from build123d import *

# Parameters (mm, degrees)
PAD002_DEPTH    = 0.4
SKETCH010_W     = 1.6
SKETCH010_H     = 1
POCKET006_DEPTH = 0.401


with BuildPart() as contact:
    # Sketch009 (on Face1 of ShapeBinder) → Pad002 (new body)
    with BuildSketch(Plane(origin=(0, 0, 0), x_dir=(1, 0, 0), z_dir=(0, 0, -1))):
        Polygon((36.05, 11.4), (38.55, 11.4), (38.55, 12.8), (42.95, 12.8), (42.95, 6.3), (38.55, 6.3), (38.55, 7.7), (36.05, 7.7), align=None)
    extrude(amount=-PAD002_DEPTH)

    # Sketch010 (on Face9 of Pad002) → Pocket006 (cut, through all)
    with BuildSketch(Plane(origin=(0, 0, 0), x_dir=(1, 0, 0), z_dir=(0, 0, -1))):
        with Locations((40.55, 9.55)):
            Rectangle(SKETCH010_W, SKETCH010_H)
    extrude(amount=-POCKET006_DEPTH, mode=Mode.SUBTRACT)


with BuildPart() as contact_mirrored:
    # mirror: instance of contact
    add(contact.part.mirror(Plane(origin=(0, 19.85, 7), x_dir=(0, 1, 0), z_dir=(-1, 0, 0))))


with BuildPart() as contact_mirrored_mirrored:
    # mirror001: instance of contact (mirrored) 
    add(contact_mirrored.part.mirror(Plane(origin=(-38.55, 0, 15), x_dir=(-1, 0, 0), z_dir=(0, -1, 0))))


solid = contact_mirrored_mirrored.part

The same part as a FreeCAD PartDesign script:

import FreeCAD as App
import Part
import Sketcher
from FreeCAD import Vector
Q = App.Units.Quantity


def add_polygon(sketch, points):
    """Adds a closed chain of lines whose ends are joined by coincident constraints."""
    first, n = sketch.GeometryCount, len(points)
    for a, b in zip(points, points[1:] + points[:1]):
        sketch.addGeometry(Part.LineSegment(App.Vector(*a, 0), App.Vector(*b, 0)), False)
    for i in range(n):
        sketch.addConstraint(Sketcher.Constraint("Coincident", first + i, 2, first + (i + 1) % n, 1))

doc = App.newDocument("Part")
body = doc.addObject("PartDesign::Body", "Body")

# Sketch on XY plane
sketch1 = body.newObject("Sketcher::SketchObject", "Sketch")
sketch1.AttachmentSupport = (doc.getObject("XY_Plane"), [""])
sketch1.MapMode = "FlatFace"
add_polygon(sketch1, [(38.5, -11.4), (36, -11.4), (36, -7.7), (38.5, -7.7), (38.5, -6.3), (43, -6.3), (43, -12.8), (38.5, -12.8)])  # lines 0-7
sketch1.addConstraint([
    Sketcher.Constraint("Horizontal", 0),
    Sketcher.Constraint("Vertical", 1),
    Sketcher.Constraint("Horizontal", 2),
    Sketcher.Constraint("Vertical", 3),
    Sketcher.Constraint("Horizontal", 4),
    Sketcher.Constraint("Vertical", 5),
    Sketcher.Constraint("Horizontal", 6),
    Sketcher.Constraint("Vertical", 7),
    Sketcher.Constraint("Vertical", 3, 2, 6, 2),
    Sketcher.Constraint("Equal", 3, 7),
    Sketcher.Constraint("DistanceX", 0, 2, 0, 1, Q("2.5 mm")),
    Sketcher.Constraint("DistanceX", 4, 1, 4, 2, Q("4.4 mm")),
    Sketcher.Constraint("DistanceY", 1, 1, 1, 2, Q("3.7 mm")),
    Sketcher.Constraint("DistanceY", 3, 1, 3, 2, Q("1.4 mm")),
    Sketcher.Constraint("DistanceY", 0, 2, -1, 1, Q("11.4 mm")),
    Sketcher.Constraint("DistanceX", -1, 1, 0, 2, Q("36.05 mm")),
])
pad1 = body.newObject("PartDesign::Pad", "Pad")
pad1.Profile = sketch1
pad1.Length = 0.4

# Sketch on XY plane
sketch2 = body.newObject("Sketcher::SketchObject", "Sketch001")
sketch2.AttachmentSupport = (doc.getObject("XY_Plane"), [""])
sketch2.MapMode = "FlatFace"
add_polygon(sketch2, [(39.8, -10.1), (39.8, -9.1), (41.4, -9.1), (41.4, -10.1)])  # lines 0-3
sketch2.addConstraint([
    Sketcher.Constraint("Vertical", 0),
    Sketcher.Constraint("Horizontal", 1),
    Sketcher.Constraint("Vertical", 2),
    Sketcher.Constraint("Horizontal", 3),
    Sketcher.Constraint("DistanceY", 0, 1, 0, 2, Q("1 mm")),
    Sketcher.Constraint("DistanceX", 1, 1, 1, 2, Q("1.6 mm")),
    Sketcher.Constraint("DistanceX", -1, 1, 0, 2, Q("39.75 mm")),
    Sketcher.Constraint("DistanceY", 0, 2, -1, 1, Q("9.05 mm")),
])
pocket1 = body.newObject("PartDesign::Pocket", "Pocket")
pocket1.Profile = sketch2
pocket1.Type = "ThroughAll"
pocket1.Reversed = True
body2 = doc.addObject("PartDesign::Body", "Body001")
doc.recompute()

mirroring = doc.addObject("Part::Mirroring", "Mirroring")
mirroring.Source = body
mirroring.Base = Vector(0, 19.85, 7)
mirroring.Normal = Vector(-1, 0, 0)
body2.BaseFeature = mirroring
doc.recompute()
body3 = doc.addObject("PartDesign::Body", "Body002")
doc.recompute()

mirroring2 = doc.addObject("Part::Mirroring", "Mirroring001")
mirroring2.Source = body2
mirroring2.Base = Vector(-38.55, 0, 15)
mirroring2.Normal = Vector(0, -1, 0)
body3.BaseFeature = mirroring2
doc.recompute()
body.Visibility = False
body2.Visibility = False
mirroring.Visibility = False
mirroring2.Visibility = False

doc.recompute()
